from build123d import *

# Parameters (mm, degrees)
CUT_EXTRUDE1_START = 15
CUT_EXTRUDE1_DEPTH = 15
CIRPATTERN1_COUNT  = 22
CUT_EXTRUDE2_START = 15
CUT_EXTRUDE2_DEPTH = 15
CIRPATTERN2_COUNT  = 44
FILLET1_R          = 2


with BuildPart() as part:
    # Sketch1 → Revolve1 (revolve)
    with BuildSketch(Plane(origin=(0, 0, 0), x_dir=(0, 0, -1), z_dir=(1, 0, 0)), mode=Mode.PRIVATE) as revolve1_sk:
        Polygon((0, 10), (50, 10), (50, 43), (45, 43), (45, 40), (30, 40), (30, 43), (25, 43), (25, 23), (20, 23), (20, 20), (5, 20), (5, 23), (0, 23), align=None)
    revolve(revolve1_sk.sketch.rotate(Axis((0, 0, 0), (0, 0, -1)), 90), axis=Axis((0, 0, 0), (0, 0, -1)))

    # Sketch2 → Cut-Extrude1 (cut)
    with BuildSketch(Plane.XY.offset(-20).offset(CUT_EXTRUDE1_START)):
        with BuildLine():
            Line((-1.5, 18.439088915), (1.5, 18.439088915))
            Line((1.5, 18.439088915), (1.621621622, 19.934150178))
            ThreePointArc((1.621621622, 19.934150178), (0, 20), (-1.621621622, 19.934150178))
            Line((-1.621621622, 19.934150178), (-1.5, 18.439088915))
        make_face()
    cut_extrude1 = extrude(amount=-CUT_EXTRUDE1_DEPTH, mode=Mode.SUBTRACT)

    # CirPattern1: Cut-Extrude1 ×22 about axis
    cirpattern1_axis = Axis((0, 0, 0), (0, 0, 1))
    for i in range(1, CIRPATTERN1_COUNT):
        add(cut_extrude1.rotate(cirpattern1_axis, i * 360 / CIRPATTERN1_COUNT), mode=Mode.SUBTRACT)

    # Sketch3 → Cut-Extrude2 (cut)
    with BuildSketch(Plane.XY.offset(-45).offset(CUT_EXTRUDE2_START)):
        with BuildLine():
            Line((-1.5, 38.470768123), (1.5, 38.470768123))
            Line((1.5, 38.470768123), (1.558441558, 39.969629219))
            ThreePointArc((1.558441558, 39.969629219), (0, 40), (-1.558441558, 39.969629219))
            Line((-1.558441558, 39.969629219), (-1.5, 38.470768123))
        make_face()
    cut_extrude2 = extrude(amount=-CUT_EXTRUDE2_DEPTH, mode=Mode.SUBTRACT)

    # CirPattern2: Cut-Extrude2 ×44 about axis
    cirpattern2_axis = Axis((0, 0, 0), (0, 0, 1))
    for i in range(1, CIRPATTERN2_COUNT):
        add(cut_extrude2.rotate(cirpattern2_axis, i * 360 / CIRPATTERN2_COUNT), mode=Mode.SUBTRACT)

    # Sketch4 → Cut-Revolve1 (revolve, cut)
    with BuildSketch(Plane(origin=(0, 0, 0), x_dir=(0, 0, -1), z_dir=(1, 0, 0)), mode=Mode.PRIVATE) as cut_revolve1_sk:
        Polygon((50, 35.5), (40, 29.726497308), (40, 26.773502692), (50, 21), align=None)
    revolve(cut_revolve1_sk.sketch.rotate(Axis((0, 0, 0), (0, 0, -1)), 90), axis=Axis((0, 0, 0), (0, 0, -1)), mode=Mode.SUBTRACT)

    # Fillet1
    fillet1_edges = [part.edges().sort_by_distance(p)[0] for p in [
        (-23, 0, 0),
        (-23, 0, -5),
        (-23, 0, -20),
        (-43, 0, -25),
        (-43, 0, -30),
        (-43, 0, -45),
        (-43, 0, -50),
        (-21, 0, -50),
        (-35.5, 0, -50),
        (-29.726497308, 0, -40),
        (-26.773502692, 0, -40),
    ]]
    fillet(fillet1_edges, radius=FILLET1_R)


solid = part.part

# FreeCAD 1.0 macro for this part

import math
import FreeCAD as App
import Part
import Sketcher
from FreeCAD import Vector
Q = App.Units.Quantity


def edges_at(feature, points):
    """Names of the edges that pass closest to the given points."""
    edges = feature.Shape.Edges
    near = lambda p: min(range(len(edges)), key=lambda i: edges[i].distToShape(Part.Vertex(*p))[0])
    return sorted({f"Edge{near(p) + 1}" for p in points})


def add_polygon(sketch, points):
    """Adds a closed chain of lines whose ends are joined by coincident constraints."""
    first, n = sketch.GeometryCount, len(points)
    for a, b in zip(points, points[1:] + points[:1]):
        sketch.addGeometry(Part.LineSegment(App.Vector(*a, 0), App.Vector(*b, 0)), False)
    for i in range(n):
        sketch.addConstraint(Sketcher.Constraint("Coincident", first + i, 2, first + (i + 1) % n, 1))

doc = App.newDocument("Part")
body = doc.addObject("PartDesign::Body", "Body")

# Sketch on YZ plane
sketch1 = body.newObject("Sketcher::SketchObject", "Sketch")
sketch1.AttachmentSupport = (doc.getObject("YZ_Plane"), [""])
sketch1.MapMode = "FlatFace"
add_polygon(sketch1, [(10, 0), (10, -50), (43, -50), (43, -45), (40, -45), (40, -30), (43, -30), (43, -25), (23, -25), (23, -20), (20, -20), (20, -5), (23, -5), (23, 0)])  # lines 0-13
sketch1.addConstraint([
    Sketcher.Constraint("Vertical", 0),
    Sketcher.Constraint("Horizontal", 1),
    Sketcher.Constraint("Vertical", 2),
    Sketcher.Constraint("Horizontal", 3),
    Sketcher.Constraint("Vertical", 4),
    Sketcher.Constraint("Horizontal", 5),
    Sketcher.Constraint("Vertical", 6),
    Sketcher.Constraint("Horizontal", 7),
    Sketcher.Constraint("Vertical", 8),
    Sketcher.Constraint("Horizontal", 9),
    Sketcher.Constraint("Vertical", 10),
    Sketcher.Constraint("Horizontal", 11),
    Sketcher.Constraint("Vertical", 12),
    Sketcher.Constraint("Horizontal", 13),
    Sketcher.Constraint("PointOnObject", 12, 2, -1),
    Sketcher.Constraint("Vertical", 2, 2, 5, 2),
    Sketcher.Constraint("Vertical", 8, 2, 11, 2),
    Sketcher.Constraint("Equal", 5, 9),
    Sketcher.Constraint("Equal", 2, 6),
    Sketcher.Constraint("Equal", 6, 8),
    Sketcher.Constraint("Equal", 4, 10),
    Sketcher.Constraint("Equal", 8, 12),
    Sketcher.Constraint("DistanceX", 1, 1, 1, 2, Q("33 mm")),
    Sketcher.Constraint("DistanceX", 3, 2, 3, 1, Q("3 mm")),
    Sketcher.Constraint("DistanceX", 7, 2, 7, 1, Q("20 mm")),
    Sketcher.Constraint("DistanceY", 0, 2, 0, 1, Q("50 mm")),
    Sketcher.Constraint("DistanceY", 2, 1, 2, 2, Q("5 mm")),
    Sketcher.Constraint("DistanceX", -1, 1, 0, 2, Q("10 mm")),
])
revolution = body.newObject("PartDesign::Revolution", "Revolution")
revolution.Profile = sketch1
revolution.ReferenceAxis = (sketch1, ["V_Axis"])
revolution.Angle = 360

# Sketch on XY plane
sketch2 = body.newObject("Sketcher::SketchObject", "Sketch001")
sketch2.AttachmentSupport = (doc.getObject("XY_Plane"), [""])
sketch2.MapMode = "FlatFace"
sketch2.AttachmentOffset = App.Placement(Vector(0, 0, -5), App.Rotation())
sketch2.addGeometry([
    Part.LineSegment(Vector(-1.5, 18.439089, 0), Vector(1.5, 18.439089, 0)),
    Part.LineSegment(Vector(1.5, 18.439089, 0), Vector(1.621622, 19.93415, 0)),
    Part.ArcOfCircle(Part.Circle(Vector(0, 0, 0), Vector(0, 0, 1), 20), math.radians(85.349291), math.radians(94.650709)),
    Part.LineSegment(Vector(-1.621622, 19.93415, 0), Vector(-1.5, 18.439089, 0)),
], False)
sketch2.addConstraint([
    Sketcher.Constraint("Coincident", 0, 2, 1, 1),
    Sketcher.Constraint("Coincident", 1, 2, 2, 1),
    Sketcher.Constraint("Coincident", 2, 2, 3, 1),
    Sketcher.Constraint("Coincident", 3, 2, 0, 1),
    Sketcher.Constraint("Horizontal", 0),
    Sketcher.Constraint("Coincident", 2, 3, -1, 1),
    Sketcher.Constraint("Horizontal", 1, 2, 2, 2),
    Sketcher.Constraint("Equal", 1, 3),
    Sketcher.Constraint("Radius", 2, Q("20 mm")),
    Sketcher.Constraint("DistanceX", 0, 1, 0, 2, Q("3 mm")),
    Sketcher.Constraint("Distance", 1, Q("1.5 mm")),
    Sketcher.Constraint("DistanceX", -1, 1, 1, 2, Q("1.621622 mm")),
])
pocket1 = body.newObject("PartDesign::Pocket", "Pocket")
pocket1.Profile = sketch2
pocket1.Length = 15
doc.recompute()

polarpattern = body.newObject("PartDesign::PolarPattern", "PolarPattern")
polarpattern.Originals = [pocket1]
polarpattern.Axis = (doc.getObject("Z_Axis"), [""])
polarpattern.Angle = 360
polarpattern.Occurrences = 22
body.Tip = polarpattern

# Sketch on XY plane
sketch3 = body.newObject("Sketcher::SketchObject", "Sketch002")
sketch3.AttachmentSupport = (doc.getObject("XY_Plane"), [""])
sketch3.MapMode = "FlatFace"
sketch3.AttachmentOffset = App.Placement(Vector(0, 0, -30), App.Rotation())
sketch3.addGeometry([
    Part.LineSegment(Vector(-1.5, 38.470768, 0), Vector(1.5, 38.470768, 0)),
    Part.LineSegment(Vector(1.5, 38.470768, 0), Vector(1.558442, 39.969629, 0)),
    Part.ArcOfCircle(Part.Circle(Vector(0, 0, 0), Vector(0, 0, 1), 40), math.radians(87.767132), math.radians(92.232868)),
    Part.LineSegment(Vector(-1.558442, 39.969629, 0), Vector(-1.5, 38.470768, 0)),
], False)
sketch3.addConstraint([
    Sketcher.Constraint("Coincident", 0, 2, 1, 1),
    Sketcher.Constraint("Coincident", 1, 2, 2, 1),
    Sketcher.Constraint("Coincident", 2, 2, 3, 1),
    Sketcher.Constraint("Coincident", 3, 2, 0, 1),
    Sketcher.Constraint("Horizontal", 0),
    Sketcher.Constraint("Coincident", 2, 3, -1, 1),
    Sketcher.Constraint("Horizontal", 1, 2, 2, 2),
    Sketcher.Constraint("Equal", 1, 3),
    Sketcher.Constraint("Radius", 2, Q("40 mm")),
    Sketcher.Constraint("DistanceX", 0, 1, 0, 2, Q("3 mm")),
    Sketcher.Constraint("Distance", 1, Q("1.5 mm")),
    Sketcher.Constraint("DistanceX", -1, 1, 1, 2, Q("1.558442 mm")),
])
pocket2 = body.newObject("PartDesign::Pocket", "Pocket001")
pocket2.Profile = sketch3
pocket2.Length = 15
doc.recompute()

polarpattern2 = body.newObject("PartDesign::PolarPattern", "PolarPattern001")
polarpattern2.Originals = [pocket2]
polarpattern2.Axis = (doc.getObject("Z_Axis"), [""])
polarpattern2.Angle = 360
polarpattern2.Occurrences = 44
body.Tip = polarpattern2

# Sketch on YZ plane
sketch4 = body.newObject("Sketcher::SketchObject", "Sketch003")
sketch4.AttachmentSupport = (doc.getObject("YZ_Plane"), [""])
sketch4.MapMode = "FlatFace"
add_polygon(sketch4, [(35.5, -50), (29.726497, -40), (26.773503, -40), (21, -50)])  # lines 0-3
sketch4.addConstraint([
    Sketcher.Constraint("Horizontal", 1),
    Sketcher.Constraint("Horizontal", 3),
    Sketcher.Constraint("Equal", 0, 2),
    Sketcher.Constraint("Angle", 0, Q("120 deg")),
    Sketcher.Constraint("DistanceX", 3, 1, 3, 2, Q("14.5 mm")),
    Sketcher.Constraint("DistanceY", 0, 2, -1, 1, Q("40 mm")),
    Sketcher.Constraint("DistanceX", -1, 1, 2, 2, Q("21 mm")),
    Sketcher.Constraint("DistanceY", 2, 2, -1, 1, Q("50 mm")),
])
groove = body.newObject("PartDesign::Groove", "Groove")
groove.Profile = sketch4
groove.ReferenceAxis = (sketch4, ["V_Axis"])
groove.Angle = 360
doc.recompute()

fillet = body.newObject("PartDesign::Fillet", "Fillet")
fillet.Base = (groove, edges_at(groove, [
    (-23, 0, 0),
    (-23, 0, -5),
    (-23, 0, -20),
    (-43, 0, -25),
    (-43, 0, -30),
    (-43, 0, -45),
    (-43, 0, -50),
    (-21, 0, -50),
    (-35.5, 0, -50),
    (-29.726, 0, -40),
    (-26.774, 0, -40),
]))
fillet.Radius = 2

doc.recompute()
